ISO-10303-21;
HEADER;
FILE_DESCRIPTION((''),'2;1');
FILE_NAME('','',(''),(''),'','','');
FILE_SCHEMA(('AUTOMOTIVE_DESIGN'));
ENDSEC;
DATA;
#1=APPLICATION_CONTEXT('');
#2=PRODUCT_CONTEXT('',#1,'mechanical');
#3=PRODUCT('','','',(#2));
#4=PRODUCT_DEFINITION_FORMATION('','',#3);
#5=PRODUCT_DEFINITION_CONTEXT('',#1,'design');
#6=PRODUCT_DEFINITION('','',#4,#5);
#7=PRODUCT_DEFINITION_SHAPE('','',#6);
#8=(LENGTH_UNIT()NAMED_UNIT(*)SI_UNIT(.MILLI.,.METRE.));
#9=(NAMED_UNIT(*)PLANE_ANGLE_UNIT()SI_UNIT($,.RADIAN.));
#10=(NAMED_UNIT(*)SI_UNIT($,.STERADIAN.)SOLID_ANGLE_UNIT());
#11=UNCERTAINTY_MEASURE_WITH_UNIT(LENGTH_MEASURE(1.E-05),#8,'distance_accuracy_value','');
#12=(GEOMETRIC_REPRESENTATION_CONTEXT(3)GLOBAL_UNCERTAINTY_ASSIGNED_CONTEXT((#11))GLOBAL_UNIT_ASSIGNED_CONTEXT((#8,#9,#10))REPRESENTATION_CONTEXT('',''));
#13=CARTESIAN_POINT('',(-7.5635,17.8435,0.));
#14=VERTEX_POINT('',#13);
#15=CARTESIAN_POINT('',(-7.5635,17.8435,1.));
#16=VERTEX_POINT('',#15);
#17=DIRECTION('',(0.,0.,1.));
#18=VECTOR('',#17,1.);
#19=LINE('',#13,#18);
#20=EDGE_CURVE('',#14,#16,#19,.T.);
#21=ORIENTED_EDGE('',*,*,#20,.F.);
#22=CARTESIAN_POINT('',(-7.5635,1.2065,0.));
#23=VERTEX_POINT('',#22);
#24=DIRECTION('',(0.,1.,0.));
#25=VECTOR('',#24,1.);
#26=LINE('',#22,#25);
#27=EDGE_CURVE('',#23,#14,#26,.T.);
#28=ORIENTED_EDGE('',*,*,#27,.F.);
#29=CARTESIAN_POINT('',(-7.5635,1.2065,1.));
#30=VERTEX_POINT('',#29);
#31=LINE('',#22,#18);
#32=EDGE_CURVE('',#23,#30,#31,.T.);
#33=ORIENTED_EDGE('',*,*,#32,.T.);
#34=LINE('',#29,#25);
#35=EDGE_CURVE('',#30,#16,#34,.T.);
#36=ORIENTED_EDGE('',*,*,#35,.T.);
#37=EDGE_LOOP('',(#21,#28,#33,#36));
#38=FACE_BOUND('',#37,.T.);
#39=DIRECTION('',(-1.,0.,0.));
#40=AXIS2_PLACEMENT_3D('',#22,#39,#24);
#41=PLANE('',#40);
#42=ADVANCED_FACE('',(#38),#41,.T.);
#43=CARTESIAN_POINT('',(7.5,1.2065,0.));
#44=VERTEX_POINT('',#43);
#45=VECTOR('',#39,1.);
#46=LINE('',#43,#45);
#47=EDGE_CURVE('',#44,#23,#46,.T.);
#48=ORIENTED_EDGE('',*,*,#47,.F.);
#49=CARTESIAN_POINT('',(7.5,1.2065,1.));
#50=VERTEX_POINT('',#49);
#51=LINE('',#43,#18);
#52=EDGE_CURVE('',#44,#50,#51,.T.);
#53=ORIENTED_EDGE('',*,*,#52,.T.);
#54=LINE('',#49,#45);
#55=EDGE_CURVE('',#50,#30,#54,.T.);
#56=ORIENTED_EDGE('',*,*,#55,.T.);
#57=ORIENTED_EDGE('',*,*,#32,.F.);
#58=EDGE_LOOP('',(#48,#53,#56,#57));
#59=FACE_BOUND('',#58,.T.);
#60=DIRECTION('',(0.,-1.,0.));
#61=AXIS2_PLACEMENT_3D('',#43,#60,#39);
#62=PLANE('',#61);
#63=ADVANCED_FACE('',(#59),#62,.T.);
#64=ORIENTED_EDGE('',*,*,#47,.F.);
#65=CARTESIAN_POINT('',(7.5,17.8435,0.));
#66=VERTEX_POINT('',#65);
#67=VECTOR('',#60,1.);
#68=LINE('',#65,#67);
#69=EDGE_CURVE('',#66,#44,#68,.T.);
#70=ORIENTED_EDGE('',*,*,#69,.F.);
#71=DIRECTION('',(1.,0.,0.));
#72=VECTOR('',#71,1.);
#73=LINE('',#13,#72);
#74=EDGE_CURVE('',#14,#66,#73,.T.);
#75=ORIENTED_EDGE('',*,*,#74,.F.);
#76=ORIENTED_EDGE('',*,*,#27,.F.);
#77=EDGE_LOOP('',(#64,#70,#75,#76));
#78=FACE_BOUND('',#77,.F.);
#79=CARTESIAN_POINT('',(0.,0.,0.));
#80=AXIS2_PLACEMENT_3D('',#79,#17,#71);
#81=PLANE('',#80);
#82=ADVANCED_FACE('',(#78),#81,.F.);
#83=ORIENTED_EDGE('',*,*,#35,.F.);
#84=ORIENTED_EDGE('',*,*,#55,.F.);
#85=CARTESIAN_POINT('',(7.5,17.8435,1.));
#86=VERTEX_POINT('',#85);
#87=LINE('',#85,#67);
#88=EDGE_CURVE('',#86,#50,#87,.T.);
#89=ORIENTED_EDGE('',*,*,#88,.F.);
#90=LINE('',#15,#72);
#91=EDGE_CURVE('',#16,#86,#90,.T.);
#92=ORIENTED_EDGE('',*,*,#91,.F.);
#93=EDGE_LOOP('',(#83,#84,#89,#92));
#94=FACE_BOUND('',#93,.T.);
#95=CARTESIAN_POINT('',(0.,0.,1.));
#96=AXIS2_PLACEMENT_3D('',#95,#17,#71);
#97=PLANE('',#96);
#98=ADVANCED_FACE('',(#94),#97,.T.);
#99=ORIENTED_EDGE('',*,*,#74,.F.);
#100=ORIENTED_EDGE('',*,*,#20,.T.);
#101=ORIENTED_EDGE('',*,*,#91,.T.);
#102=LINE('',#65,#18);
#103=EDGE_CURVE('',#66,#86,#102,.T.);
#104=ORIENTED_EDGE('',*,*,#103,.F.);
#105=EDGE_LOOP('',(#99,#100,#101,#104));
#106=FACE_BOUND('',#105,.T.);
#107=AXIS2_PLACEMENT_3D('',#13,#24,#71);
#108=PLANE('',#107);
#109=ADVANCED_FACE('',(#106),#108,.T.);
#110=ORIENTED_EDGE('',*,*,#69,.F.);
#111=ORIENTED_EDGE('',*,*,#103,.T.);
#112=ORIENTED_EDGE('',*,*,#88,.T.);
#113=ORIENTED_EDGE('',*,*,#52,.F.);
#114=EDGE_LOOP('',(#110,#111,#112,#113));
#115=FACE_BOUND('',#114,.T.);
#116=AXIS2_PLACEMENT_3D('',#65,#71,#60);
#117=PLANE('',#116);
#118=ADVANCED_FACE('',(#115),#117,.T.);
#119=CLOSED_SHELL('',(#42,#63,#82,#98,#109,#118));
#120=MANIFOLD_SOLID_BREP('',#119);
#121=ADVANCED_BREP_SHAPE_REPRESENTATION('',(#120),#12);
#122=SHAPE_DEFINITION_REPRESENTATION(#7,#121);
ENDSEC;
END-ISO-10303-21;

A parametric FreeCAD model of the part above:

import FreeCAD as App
import Part
import Sketcher
from FreeCAD import Vector
Q = App.Units.Quantity


def add_polygon(sketch, points):
    """Adds a closed chain of lines whose ends are joined by coincident constraints."""
    first, n = sketch.GeometryCount, len(points)
    for a, b in zip(points, points[1:] + points[:1]):
        sketch.addGeometry(Part.LineSegment(App.Vector(*a, 0), App.Vector(*b, 0)), False)
    for i in range(n):
        sketch.addConstraint(Sketcher.Constraint("Coincident", first + i, 2, first + (i + 1) % n, 1))

doc = App.newDocument("Part")
body = doc.addObject("PartDesign::Body", "Body")

sketch1 = body.newObject("Sketcher::SketchObject", "Sketch")
sketch1.AttachmentSupport = (doc.getObject("XY_Plane"), [""])
sketch1.MapMode = "FlatFace"
add_polygon(sketch1, [(8, 18), (-8, 18), (-8, 1), (8, 1)])
sketch1.addConstraint(Sketcher.Constraint("Horizontal", 0))
sketch1.addConstraint(Sketcher.Constraint("Vertical", 1))
sketch1.addConstraint(Sketcher.Constraint("Horizontal", 2))
sketch1.addConstraint(Sketcher.Constraint("Vertical", 3))
sketch1.addConstraint(Sketcher.Constraint("DistanceX", -1, 1, 2, 2, Q("7.5 mm")))
sketch1.addConstraint(Sketcher.Constraint("DistanceY", 1, 2, 1, 1, Q("16.637 mm")))
sketch1.addConstraint(Sketcher.Constraint("DistanceX", 0, 2, 0, 1, Q("15.0635 mm")))
sketch1.addConstraint(Sketcher.Constraint("DistanceY", -1, 1, 0, 2, Q("17.8435 mm")))
pad1 = body.newObject("PartDesign::Pad", "Pad")
pad1.Profile = sketch1
pad1.Length = 1

doc.recompute()
